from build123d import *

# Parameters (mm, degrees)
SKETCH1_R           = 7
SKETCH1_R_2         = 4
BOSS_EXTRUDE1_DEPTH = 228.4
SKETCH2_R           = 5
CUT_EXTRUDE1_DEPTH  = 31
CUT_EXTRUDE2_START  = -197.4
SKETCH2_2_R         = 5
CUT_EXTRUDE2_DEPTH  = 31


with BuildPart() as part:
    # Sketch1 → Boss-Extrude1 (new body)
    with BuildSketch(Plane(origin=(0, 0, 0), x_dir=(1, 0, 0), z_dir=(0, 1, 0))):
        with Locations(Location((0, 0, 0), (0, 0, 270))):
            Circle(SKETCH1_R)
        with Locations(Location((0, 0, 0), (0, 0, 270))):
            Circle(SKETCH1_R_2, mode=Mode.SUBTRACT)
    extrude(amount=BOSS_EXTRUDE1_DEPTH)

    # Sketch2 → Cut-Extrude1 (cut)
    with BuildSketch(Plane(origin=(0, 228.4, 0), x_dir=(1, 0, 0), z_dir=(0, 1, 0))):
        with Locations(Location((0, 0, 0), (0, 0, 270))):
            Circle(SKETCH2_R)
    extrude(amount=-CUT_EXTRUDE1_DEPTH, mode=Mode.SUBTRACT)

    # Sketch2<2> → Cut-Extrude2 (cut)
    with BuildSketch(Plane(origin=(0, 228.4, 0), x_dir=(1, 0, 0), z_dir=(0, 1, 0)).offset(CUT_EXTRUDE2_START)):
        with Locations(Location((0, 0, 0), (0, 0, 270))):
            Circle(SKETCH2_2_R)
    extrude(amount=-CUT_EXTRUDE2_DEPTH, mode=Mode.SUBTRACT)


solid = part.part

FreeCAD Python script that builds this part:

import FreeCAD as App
import Part
import Sketcher

V = App.Vector

doc = App.newDocument("Part")
body = doc.addObject("PartDesign::Body", "Body")

sketch1 = body.newObject("Sketcher::SketchObject", "Sketch")
sketch1.AttachmentSupport = (doc.getObject("XZ_Plane"), [""])
sketch1.MapMode = "FlatFace"
sketch1.addGeometry(Part.Circle(V(0, 0, 0), V(0, 0, 1), 7), False)
sketch1.addGeometry(Part.Circle(V(0, 0, 0), V(0, 0, 1), 4), False)
sketch1.addConstraint(Sketcher.Constraint("Coincident", 0, 3, -1, 1))
sketch1.addConstraint(Sketcher.Constraint("Coincident", 1, 3, -1, 1))
sketch1.addConstraint(Sketcher.Constraint("Diameter", 0, 14.0))
sketch1.addConstraint(Sketcher.Constraint("Diameter", 1, 8.0))
pad1 = body.newObject("PartDesign::Pad", "Pad")
pad1.Profile = sketch1
pad1.Length = 228.4
pad1.Reversed = True

sketch2 = body.newObject("Sketcher::SketchObject", "Sketch001")
sketch2.AttachmentSupport = (doc.getObject("XZ_Plane"), [""])
sketch2.MapMode = "FlatFace"
sketch2.AttachmentOffset = App.Placement(V(0, 0, -228.4), App.Rotation())
sketch2.addGeometry(Part.Circle(V(0, 0, 0), V(0, 0, 1), 5), False)
sketch2.addConstraint(Sketcher.Constraint("Coincident", 0, 3, -1, 1))
sketch2.addConstraint(Sketcher.Constraint("Diameter", 0, 10.0))
pocket1 = body.newObject("PartDesign::Pocket", "Pocket")
pocket1.Profile = sketch2
pocket1.Length = 31
pocket1.Reversed = True

sketch3 = body.newObject("Sketcher::SketchObject", "Sketch002")
sketch3.AttachmentSupport = (doc.getObject("XZ_Plane"), [""])
sketch3.MapMode = "FlatFace"
sketch3.AttachmentOffset = App.Placement(V(0, 0, -31), App.Rotation())
sketch3.addGeometry(Part.Circle(V(0, 0, 0), V(0, 0, 1), 5), False)
sketch3.addConstraint(Sketcher.Constraint("Coincident", 0, 3, -1, 1))
sketch3.addConstraint(Sketcher.Constraint("Diameter", 0, 10.0))
pocket2 = body.newObject("PartDesign::Pocket", "Pocket001")
pocket2.Profile = sketch3
pocket2.Length = 31
pocket2.Reversed = True

doc.recompute()
